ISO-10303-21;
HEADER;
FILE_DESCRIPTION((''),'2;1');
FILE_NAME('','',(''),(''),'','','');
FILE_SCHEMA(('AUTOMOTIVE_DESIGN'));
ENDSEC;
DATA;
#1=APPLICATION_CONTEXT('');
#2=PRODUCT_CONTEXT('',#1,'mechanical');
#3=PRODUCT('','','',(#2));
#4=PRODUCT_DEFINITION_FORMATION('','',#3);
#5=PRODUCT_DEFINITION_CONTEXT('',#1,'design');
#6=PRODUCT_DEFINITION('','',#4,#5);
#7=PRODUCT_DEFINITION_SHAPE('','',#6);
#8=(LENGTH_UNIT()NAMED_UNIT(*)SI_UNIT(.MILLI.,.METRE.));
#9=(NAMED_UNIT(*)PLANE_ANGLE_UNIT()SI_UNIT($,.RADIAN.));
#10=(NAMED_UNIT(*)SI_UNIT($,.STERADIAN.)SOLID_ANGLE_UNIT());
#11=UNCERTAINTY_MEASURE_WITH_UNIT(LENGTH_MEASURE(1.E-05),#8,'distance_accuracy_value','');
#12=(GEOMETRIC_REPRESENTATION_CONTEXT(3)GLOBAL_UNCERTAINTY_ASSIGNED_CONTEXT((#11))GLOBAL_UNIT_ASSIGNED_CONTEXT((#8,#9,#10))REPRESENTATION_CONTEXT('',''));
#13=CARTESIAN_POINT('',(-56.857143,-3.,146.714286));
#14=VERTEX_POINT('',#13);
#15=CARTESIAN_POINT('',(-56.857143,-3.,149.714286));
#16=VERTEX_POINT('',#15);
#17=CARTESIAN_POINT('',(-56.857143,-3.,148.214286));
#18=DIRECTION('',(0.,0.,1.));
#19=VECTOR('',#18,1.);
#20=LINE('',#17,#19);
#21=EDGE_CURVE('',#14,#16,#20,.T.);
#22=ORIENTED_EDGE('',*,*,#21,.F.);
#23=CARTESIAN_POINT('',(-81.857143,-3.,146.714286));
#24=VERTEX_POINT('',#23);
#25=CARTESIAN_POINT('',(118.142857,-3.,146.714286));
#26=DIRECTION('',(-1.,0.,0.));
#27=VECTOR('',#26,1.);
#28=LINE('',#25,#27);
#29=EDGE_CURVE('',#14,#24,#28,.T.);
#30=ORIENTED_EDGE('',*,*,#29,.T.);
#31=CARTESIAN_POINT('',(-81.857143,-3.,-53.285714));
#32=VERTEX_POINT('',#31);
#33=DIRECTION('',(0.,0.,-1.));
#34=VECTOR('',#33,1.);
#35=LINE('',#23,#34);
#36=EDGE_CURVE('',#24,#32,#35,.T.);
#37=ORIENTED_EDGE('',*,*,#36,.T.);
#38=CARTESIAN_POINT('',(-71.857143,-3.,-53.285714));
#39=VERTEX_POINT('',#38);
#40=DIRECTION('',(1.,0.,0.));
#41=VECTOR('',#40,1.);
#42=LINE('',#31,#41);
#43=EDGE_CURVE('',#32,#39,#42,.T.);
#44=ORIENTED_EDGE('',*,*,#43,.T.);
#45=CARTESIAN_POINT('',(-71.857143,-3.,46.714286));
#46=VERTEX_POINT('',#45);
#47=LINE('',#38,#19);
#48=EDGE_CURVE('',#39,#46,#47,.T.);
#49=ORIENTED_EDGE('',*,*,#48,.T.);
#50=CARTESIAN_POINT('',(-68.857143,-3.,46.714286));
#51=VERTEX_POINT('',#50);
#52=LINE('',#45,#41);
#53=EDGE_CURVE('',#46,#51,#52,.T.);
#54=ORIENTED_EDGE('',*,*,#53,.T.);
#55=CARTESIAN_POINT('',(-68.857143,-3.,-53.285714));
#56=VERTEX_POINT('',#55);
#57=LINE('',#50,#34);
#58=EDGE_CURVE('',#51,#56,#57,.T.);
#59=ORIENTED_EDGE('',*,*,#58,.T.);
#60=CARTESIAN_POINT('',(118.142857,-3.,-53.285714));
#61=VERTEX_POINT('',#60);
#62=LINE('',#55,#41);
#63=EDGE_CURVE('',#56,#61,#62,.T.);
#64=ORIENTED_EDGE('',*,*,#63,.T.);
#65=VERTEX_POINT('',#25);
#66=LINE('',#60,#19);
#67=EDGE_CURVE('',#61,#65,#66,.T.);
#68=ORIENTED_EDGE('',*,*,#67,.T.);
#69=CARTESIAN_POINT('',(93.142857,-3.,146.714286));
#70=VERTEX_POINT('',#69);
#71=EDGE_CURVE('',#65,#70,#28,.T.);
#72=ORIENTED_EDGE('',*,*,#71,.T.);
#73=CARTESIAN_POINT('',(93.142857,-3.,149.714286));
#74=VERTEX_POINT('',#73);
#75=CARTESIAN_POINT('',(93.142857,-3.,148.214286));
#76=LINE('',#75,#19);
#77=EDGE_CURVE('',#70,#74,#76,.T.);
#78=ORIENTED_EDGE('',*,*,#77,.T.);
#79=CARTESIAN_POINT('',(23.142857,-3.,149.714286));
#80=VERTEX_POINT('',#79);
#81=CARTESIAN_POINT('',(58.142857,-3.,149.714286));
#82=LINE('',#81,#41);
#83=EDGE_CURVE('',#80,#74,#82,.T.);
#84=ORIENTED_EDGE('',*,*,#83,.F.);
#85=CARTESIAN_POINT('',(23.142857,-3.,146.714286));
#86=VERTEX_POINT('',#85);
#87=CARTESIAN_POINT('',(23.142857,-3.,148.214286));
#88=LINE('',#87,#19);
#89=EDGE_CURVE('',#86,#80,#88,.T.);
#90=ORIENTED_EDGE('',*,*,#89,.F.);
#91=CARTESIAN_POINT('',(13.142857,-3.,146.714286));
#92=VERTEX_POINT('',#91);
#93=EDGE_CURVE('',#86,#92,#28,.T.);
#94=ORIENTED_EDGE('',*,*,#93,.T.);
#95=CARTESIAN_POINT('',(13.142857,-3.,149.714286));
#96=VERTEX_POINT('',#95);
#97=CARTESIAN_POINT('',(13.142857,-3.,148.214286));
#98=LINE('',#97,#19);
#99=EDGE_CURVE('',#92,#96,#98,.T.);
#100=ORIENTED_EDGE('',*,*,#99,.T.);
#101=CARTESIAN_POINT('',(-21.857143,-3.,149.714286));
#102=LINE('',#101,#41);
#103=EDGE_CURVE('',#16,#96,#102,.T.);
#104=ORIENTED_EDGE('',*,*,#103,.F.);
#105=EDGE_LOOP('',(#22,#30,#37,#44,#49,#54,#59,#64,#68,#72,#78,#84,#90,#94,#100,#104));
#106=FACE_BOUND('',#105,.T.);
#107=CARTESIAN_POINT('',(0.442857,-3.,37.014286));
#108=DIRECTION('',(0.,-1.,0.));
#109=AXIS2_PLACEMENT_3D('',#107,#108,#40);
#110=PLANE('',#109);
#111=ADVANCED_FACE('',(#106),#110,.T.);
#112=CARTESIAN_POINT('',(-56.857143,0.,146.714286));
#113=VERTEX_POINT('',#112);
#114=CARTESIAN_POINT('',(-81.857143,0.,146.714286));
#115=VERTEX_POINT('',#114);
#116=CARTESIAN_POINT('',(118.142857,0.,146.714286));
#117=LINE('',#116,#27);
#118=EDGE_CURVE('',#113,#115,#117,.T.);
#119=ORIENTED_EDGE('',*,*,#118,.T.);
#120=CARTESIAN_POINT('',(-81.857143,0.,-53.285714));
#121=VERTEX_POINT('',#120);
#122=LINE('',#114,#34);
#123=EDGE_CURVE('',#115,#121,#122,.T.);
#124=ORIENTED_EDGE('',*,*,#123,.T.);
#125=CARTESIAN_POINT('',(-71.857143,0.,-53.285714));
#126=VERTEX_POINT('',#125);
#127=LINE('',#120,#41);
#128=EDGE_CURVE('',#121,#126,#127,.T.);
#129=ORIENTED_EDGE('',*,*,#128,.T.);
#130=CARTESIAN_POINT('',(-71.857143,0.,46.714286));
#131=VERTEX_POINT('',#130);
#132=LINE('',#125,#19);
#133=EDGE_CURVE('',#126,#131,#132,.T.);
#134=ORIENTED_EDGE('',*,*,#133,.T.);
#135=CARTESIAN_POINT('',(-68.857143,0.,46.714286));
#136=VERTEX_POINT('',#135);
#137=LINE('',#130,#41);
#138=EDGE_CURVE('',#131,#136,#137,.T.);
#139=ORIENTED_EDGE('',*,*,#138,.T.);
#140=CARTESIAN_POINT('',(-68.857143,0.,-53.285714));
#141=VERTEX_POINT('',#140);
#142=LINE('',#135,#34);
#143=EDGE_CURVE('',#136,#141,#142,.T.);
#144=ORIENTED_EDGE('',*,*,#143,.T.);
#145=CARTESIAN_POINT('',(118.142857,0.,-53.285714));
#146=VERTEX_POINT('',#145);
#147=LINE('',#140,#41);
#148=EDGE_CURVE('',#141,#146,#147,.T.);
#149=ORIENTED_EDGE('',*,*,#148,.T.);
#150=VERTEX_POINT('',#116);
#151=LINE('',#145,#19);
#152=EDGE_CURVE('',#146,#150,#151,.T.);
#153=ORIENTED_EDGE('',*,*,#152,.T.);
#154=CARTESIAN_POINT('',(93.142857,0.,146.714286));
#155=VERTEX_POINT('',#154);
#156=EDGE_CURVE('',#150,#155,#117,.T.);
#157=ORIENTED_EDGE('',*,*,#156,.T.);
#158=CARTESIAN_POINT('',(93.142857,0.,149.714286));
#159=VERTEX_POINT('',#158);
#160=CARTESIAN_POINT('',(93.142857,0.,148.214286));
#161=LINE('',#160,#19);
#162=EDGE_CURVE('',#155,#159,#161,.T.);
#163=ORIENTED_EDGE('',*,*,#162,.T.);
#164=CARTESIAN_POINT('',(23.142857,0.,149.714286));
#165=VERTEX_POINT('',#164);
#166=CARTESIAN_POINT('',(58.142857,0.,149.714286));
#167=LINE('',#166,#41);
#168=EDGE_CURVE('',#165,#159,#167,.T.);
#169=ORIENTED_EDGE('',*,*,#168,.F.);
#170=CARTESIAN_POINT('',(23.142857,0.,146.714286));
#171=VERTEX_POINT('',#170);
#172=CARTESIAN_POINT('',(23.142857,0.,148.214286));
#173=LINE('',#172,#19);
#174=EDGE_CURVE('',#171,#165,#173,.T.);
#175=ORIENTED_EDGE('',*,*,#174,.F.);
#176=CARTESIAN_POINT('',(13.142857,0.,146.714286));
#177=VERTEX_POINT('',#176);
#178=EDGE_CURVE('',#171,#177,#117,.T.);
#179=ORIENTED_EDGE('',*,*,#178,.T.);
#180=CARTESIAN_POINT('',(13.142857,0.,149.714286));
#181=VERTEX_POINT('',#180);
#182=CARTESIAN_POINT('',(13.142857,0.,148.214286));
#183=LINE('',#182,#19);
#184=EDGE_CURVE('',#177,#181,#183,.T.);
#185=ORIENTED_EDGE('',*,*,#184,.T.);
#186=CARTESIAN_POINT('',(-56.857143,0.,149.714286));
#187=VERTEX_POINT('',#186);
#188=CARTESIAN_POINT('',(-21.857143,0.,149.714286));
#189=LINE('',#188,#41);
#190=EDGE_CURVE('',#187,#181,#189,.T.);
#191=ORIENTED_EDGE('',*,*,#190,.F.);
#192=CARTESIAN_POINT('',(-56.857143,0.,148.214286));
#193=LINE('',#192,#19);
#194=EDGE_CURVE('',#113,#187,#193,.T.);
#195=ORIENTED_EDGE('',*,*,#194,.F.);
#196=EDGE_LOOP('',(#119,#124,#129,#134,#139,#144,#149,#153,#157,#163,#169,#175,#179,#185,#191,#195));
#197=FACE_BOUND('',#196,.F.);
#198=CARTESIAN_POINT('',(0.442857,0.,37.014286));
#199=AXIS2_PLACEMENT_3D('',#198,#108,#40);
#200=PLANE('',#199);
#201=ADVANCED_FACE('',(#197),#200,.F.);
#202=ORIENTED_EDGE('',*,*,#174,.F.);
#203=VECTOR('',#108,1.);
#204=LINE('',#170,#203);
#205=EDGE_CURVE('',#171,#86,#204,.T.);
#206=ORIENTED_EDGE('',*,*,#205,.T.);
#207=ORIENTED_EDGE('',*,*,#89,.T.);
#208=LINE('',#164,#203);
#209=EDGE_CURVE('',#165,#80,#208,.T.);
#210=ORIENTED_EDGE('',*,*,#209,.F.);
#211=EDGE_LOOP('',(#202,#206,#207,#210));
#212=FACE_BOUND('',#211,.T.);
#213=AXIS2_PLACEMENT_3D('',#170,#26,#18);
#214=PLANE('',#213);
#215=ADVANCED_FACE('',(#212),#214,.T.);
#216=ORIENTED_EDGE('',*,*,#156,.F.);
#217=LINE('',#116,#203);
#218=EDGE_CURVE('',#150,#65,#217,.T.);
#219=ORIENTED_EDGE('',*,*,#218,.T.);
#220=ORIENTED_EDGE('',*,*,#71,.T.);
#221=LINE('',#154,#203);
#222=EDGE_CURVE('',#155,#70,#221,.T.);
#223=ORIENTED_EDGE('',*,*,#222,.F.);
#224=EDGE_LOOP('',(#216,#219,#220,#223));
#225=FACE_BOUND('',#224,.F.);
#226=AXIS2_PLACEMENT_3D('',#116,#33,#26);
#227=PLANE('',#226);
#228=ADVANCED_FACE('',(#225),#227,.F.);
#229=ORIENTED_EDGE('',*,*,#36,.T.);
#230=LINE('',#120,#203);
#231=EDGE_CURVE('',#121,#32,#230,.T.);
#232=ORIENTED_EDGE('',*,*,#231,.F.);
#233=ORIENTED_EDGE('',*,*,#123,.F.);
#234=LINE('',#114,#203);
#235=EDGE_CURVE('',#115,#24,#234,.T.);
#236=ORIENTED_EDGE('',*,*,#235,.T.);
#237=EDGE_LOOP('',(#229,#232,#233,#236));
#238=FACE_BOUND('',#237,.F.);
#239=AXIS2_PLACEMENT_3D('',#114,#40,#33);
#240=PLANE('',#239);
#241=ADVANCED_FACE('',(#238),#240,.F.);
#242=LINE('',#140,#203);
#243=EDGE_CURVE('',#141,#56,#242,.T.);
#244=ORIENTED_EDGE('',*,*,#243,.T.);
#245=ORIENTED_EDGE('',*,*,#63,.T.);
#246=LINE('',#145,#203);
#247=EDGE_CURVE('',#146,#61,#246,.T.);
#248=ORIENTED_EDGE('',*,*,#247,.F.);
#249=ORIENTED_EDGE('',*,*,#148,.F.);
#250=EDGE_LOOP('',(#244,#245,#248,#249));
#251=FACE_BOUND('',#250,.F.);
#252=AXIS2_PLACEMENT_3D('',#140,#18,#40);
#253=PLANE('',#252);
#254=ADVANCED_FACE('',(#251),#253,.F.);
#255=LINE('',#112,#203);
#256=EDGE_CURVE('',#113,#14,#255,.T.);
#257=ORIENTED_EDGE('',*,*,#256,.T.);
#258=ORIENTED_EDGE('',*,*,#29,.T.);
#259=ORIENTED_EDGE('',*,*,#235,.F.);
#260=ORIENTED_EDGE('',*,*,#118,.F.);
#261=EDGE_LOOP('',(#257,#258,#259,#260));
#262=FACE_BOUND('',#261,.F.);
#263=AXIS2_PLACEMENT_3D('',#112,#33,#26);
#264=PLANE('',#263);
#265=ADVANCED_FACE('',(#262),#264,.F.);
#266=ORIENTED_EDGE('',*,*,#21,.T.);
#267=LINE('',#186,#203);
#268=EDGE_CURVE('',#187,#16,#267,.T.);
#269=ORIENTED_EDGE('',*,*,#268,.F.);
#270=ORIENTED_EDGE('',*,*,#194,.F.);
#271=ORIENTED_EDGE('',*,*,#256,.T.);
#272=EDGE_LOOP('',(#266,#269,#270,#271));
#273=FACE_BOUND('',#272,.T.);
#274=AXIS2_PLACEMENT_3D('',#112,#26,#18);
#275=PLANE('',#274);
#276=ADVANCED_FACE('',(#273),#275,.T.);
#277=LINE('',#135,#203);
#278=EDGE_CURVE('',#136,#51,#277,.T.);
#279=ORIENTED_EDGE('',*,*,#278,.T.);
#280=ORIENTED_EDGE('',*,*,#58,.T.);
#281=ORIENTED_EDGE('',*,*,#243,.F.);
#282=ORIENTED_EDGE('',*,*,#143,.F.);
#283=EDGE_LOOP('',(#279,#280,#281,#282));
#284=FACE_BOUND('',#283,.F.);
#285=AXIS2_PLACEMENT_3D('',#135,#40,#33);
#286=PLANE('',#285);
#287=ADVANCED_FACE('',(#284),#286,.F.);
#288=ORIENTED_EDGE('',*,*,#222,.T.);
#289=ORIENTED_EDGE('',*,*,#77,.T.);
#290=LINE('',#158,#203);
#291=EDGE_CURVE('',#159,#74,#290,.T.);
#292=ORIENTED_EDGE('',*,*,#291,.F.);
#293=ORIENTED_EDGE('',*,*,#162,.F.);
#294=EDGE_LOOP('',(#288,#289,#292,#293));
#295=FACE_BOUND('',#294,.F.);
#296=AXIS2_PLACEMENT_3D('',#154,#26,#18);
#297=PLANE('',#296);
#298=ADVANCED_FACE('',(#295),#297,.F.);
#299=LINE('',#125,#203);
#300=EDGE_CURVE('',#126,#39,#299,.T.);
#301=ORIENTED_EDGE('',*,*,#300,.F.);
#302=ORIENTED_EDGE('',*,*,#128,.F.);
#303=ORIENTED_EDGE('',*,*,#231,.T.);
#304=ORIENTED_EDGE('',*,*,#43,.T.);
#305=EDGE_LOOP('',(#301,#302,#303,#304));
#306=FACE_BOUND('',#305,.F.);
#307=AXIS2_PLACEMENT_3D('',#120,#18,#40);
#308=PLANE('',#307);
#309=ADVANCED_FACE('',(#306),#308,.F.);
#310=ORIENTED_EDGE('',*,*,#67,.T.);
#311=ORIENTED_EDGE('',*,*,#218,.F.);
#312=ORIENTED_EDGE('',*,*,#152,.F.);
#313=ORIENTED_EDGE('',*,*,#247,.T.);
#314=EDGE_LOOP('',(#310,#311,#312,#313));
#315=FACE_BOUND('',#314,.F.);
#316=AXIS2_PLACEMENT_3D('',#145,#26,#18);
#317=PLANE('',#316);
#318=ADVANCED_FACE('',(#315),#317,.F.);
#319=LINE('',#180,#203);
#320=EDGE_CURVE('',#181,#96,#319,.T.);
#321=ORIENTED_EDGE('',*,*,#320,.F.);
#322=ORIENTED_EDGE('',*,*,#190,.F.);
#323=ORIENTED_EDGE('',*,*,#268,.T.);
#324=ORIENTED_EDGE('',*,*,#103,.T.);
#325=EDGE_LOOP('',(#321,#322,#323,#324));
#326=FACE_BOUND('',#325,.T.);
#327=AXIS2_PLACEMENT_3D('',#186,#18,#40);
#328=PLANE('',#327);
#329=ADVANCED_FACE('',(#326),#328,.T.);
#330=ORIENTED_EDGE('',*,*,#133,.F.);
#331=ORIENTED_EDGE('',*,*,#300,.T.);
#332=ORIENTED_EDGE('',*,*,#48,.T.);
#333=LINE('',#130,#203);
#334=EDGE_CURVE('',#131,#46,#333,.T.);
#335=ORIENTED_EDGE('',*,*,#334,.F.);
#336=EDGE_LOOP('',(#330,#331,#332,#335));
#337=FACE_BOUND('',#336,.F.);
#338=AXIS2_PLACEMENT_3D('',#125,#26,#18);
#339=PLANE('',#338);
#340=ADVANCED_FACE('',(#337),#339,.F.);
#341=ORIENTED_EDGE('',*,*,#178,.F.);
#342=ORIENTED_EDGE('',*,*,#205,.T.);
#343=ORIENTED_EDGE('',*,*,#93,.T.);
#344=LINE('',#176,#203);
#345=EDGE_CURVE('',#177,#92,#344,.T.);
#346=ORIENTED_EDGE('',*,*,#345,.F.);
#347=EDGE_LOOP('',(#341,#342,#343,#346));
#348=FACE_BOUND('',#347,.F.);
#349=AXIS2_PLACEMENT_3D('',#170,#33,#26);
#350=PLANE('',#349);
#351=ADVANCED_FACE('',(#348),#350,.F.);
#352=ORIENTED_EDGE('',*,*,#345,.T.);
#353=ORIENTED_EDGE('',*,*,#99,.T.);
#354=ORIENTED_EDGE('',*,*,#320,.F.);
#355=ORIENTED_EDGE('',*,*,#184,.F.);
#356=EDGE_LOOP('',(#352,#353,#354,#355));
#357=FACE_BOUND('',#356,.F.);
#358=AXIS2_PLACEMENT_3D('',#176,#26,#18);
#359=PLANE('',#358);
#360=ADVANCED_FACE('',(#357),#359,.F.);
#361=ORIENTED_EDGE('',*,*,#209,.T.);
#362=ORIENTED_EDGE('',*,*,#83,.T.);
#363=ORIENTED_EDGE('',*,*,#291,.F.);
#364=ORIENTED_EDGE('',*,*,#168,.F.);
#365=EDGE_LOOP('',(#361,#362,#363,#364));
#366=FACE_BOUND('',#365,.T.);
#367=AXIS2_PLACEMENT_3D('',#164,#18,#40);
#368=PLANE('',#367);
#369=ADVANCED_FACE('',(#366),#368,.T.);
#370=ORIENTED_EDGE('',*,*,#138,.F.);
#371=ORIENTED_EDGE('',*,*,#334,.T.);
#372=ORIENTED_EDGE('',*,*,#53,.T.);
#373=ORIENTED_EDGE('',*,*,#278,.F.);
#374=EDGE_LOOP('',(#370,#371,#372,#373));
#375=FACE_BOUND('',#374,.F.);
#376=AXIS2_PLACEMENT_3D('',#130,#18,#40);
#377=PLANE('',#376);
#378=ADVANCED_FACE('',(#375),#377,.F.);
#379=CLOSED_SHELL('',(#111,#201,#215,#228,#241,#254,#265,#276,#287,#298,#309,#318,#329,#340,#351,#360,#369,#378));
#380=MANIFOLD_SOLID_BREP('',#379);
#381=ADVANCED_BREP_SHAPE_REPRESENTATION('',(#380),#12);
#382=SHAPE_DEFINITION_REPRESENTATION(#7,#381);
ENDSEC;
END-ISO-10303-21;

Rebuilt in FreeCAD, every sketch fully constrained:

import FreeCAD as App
import Part
import Sketcher
from FreeCAD import Vector


def add_polygon(sketch, points):
    """Adds a closed chain of lines whose ends are joined by coincident constraints."""
    first, n = sketch.GeometryCount, len(points)
    for a, b in zip(points, points[1:] + points[:1]):
        sketch.addGeometry(Part.LineSegment(App.Vector(*a, 0), App.Vector(*b, 0)), False)
    for i in range(n):
        sketch.addConstraint(Sketcher.Constraint("Coincident", first + i, 2, first + (i + 1) % n, 1))

doc = App.newDocument("Part")
params = doc.addObject("Spreadsheet::Sheet", "Params")
for row, (alias, value) in enumerate([
    ("sketch1_width", "10 mm"),
    ("sketch1_width2", "3 mm"),
    ("sketch1_width3", "187 mm"),
    ("sketch1_width4", "25 mm"),
    ("sketch1_height", "200 mm"),
    ("pad1_length", "3 mm"),
], start=1):
    params.set(f"A{row}", alias)
    params.set(f"B{row}", "=" + value)
    params.setAlias(f"B{row}", alias)

body = doc.addObject("PartDesign::Body", "Body")

# Sketch on XZ plane
sketch1 = body.newObject("Sketcher::SketchObject", "Sketch")
sketch1.AttachmentSupport = (doc.getObject("XZ_Plane"), [""])
sketch1.MapMode = "FlatFace"
add_polygon(sketch1, [(-81.857143, 146.714286), (-81.857143, -53.285714), (-71.857143, -53.285714), (-71.857143, 46.714286), (-68.857143, 46.714286), (-68.857143, -53.285714), (118.142857, -53.285714), (118.142857, 146.714286), (93.142857, 146.714286), (93.142857, 149.714286), (23.142857, 149.714286), (23.142857, 146.714286), (13.142857, 146.714286), (13.142857, 149.714286), (-56.857143, 149.714286), (-56.857143, 146.714286)])  # lines 0-15
sketch1.addConstraint([
    Sketcher.Constraint("Vertical", 0),
    Sketcher.Constraint("Horizontal", 1),
    Sketcher.Constraint("Vertical", 2),
    Sketcher.Constraint("Horizontal", 3),
    Sketcher.Constraint("Vertical", 4),
    Sketcher.Constraint("Horizontal", 5),
    Sketcher.Constraint("Vertical", 6),
    Sketcher.Constraint("Horizontal", 7),
    Sketcher.Constraint("Vertical", 8),
    Sketcher.Constraint("Horizontal", 9),
    Sketcher.Constraint("Vertical", 10),
    Sketcher.Constraint("Horizontal", 11),
    Sketcher.Constraint("Vertical", 12),
    Sketcher.Constraint("Horizontal", 13),
    Sketcher.Constraint("Vertical", 14),
    Sketcher.Constraint("Horizontal", 15),
    Sketcher.Constraint("Horizontal", 1, 2, 4, 2),
    Sketcher.Constraint("Horizontal", 7, 2, 10, 2),
    Sketcher.Constraint("Horizontal", 9, 2, 12, 2),
    Sketcher.Constraint("Horizontal", 11, 2, 14, 2),
    Sketcher.Constraint("Equal", 1, 11),
    Sketcher.Constraint("Equal", 9, 13),
    Sketcher.Constraint("Equal", 7, 15),
    Sketcher.Constraint("Equal", 3, 8),
    Sketcher.Constraint("DistanceX", 1, 1, 1, 2, 10.0),
    Sketcher.Constraint("DistanceX", 3, 1, 3, 2, 3.0),
    Sketcher.Constraint("DistanceX", 5, 1, 5, 2, 187.0),
    Sketcher.Constraint("DistanceX", 7, 2, 7, 1, 25.0),
    Sketcher.Constraint("DistanceY", 0, 2, 0, 1, 200.0),
    Sketcher.Constraint("DistanceY", 2, 1, 2, 2, 100.0),
    Sketcher.Constraint("DistanceX", 0, 2, -1, 1, 81.857143),
    Sketcher.Constraint("DistanceY", 0, 2, -1, 1, 53.285714),
])
sketch1.setExpression("Constraints[40]", "Params.sketch1_width")
sketch1.setExpression("Constraints[41]", "Params.sketch1_width2")
sketch1.setExpression("Constraints[42]", "Params.sketch1_width3")
sketch1.setExpression("Constraints[43]", "Params.sketch1_width4")
sketch1.setExpression("Constraints[44]", "Params.sketch1_height")
pad1 = body.newObject("PartDesign::Pad", "Pad")
pad1.Profile = sketch1
pad1.setExpression("Length", "Params.pad1_length")

doc.recompute()
